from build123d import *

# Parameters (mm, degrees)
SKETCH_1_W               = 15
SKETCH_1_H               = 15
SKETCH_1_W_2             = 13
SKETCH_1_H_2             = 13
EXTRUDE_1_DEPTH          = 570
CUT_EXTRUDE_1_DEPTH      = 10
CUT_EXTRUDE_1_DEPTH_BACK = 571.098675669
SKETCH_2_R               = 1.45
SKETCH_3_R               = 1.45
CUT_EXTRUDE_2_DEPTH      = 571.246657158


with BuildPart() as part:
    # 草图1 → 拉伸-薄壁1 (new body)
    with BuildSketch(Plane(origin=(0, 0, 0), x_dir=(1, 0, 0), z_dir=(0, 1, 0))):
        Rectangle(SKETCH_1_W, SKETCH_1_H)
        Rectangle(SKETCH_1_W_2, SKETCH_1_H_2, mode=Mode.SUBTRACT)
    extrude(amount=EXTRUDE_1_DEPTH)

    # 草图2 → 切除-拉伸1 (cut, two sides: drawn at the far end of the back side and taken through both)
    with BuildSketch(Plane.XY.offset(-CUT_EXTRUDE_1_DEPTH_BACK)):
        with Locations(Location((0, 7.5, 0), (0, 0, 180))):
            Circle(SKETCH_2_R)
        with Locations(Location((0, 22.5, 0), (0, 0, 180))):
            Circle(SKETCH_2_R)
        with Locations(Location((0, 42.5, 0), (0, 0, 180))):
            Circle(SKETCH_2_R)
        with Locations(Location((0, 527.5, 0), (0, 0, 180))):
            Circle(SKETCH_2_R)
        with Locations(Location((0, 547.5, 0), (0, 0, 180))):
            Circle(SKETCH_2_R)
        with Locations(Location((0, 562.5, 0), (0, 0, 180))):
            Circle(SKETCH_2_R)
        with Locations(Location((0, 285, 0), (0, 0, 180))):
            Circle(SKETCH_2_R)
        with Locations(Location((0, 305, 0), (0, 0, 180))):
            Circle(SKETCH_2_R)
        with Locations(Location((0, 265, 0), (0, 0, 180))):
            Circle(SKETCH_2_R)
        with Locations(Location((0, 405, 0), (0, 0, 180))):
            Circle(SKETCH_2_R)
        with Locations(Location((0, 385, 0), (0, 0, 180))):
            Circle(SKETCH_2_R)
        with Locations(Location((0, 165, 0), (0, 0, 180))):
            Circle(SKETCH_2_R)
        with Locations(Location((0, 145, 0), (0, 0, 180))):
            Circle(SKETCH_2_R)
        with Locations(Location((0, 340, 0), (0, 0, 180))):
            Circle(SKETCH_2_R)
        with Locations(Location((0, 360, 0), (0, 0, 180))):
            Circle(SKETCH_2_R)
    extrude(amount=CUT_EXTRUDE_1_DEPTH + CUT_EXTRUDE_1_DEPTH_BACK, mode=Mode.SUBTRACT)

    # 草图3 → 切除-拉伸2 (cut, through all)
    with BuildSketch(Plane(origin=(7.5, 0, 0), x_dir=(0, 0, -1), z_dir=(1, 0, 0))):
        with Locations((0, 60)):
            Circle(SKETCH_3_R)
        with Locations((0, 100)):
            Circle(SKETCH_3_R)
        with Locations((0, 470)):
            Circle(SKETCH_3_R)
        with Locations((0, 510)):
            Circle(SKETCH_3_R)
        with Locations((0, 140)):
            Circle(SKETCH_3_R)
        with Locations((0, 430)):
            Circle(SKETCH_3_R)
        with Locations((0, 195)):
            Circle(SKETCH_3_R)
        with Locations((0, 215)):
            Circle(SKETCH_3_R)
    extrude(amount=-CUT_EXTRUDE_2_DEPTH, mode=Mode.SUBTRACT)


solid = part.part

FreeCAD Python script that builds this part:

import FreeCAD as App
import Part
import Sketcher
from FreeCAD import Vector

doc = App.newDocument("Part")
body = doc.addObject("PartDesign::Body", "Body")

sketch1 = body.newObject("Sketcher::SketchObject", "Sketch")
sketch1.AttachmentSupport = (doc.getObject("XZ_Plane"), [""])
sketch1.MapMode = "FlatFace"
sketch1.addGeometry(Part.LineSegment(Vector(-8, -8, 0), Vector(-8, 8, 0)), False)
sketch1.addGeometry(Part.LineSegment(Vector(-8, 8, 0), Vector(8, 8, 0)), False)
sketch1.addGeometry(Part.LineSegment(Vector(8, 8, 0), Vector(8, -8, 0)), False)
sketch1.addGeometry(Part.LineSegment(Vector(8, -8, 0), Vector(-8, -8, 0)), False)
sketch1.addGeometry(Part.LineSegment(Vector(6, 6, 0), Vector(-6, 6, 0)), False)
sketch1.addGeometry(Part.LineSegment(Vector(-6, 6, 0), Vector(-6, -6, 0)), False)
sketch1.addGeometry(Part.LineSegment(Vector(-6, -6, 0), Vector(6, -6, 0)), False)
sketch1.addGeometry(Part.LineSegment(Vector(6, -6, 0), Vector(6, 6, 0)), False)
sketch1.addConstraint(Sketcher.Constraint("Coincident", 0, 2, 1, 1))
sketch1.addConstraint(Sketcher.Constraint("Coincident", 1, 2, 2, 1))
sketch1.addConstraint(Sketcher.Constraint("Coincident", 2, 2, 3, 1))
sketch1.addConstraint(Sketcher.Constraint("Coincident", 3, 2, 0, 1))
sketch1.addConstraint(Sketcher.Constraint("Coincident", 4, 2, 5, 1))
sketch1.addConstraint(Sketcher.Constraint("Coincident", 5, 2, 6, 1))
sketch1.addConstraint(Sketcher.Constraint("Coincident", 6, 2, 7, 1))
sketch1.addConstraint(Sketcher.Constraint("Coincident", 7, 2, 4, 1))
sketch1.addConstraint(Sketcher.Constraint("Vertical", 0))
sketch1.addConstraint(Sketcher.Constraint("Horizontal", 1))
sketch1.addConstraint(Sketcher.Constraint("Vertical", 2))
sketch1.addConstraint(Sketcher.Constraint("Horizontal", 3))
sketch1.addConstraint(Sketcher.Constraint("Horizontal", 4))
sketch1.addConstraint(Sketcher.Constraint("Vertical", 5))
sketch1.addConstraint(Sketcher.Constraint("Horizontal", 6))
sketch1.addConstraint(Sketcher.Constraint("Vertical", 7))
sketch1.addConstraint(Sketcher.Constraint("Symmetric", 0, 2, 2, 2, -1, 1))
sketch1.addConstraint(Sketcher.Constraint("Symmetric", 4, 2, 6, 2, -1, 1))
sketch1.addConstraint(Sketcher.Constraint("Equal", 3, 0))
sketch1.addConstraint(Sketcher.Constraint("Equal", 6, 5))
sketch1.addConstraint(Sketcher.Constraint("DistanceX", 1, 1, 1, 2, 15.0))
sketch1.addConstraint(Sketcher.Constraint("DistanceX", 4, 2, 4, 1, 13.0))
pad1 = body.newObject("PartDesign::Pad", "Pad")
pad1.Profile = sketch1
pad1.Length = 570
pad1.Reversed = True

sketch2 = body.newObject("Sketcher::SketchObject", "Sketch001")
sketch2.AttachmentSupport = (doc.getObject("XY_Plane"), [""])
sketch2.MapMode = "FlatFace"
sketch2.addGeometry(Part.Circle(Vector(0, 7.5, 0), Vector(0, 0, 1), 1.4), False)
sketch2.addGeometry(Part.Circle(Vector(0, 22.5, 0), Vector(0, 0, 1), 1.4), False)
sketch2.addGeometry(Part.Circle(Vector(0, 42.5, 0), Vector(0, 0, 1), 1.4), False)
sketch2.addGeometry(Part.Circle(Vector(0, 527.5, 0), Vector(0, 0, 1), 1.4), False)
sketch2.addGeometry(Part.Circle(Vector(0, 547.5, 0), Vector(0, 0, 1), 1.4), False)
sketch2.addGeometry(Part.Circle(Vector(0, 562.5, 0), Vector(0, 0, 1), 1.4), False)
sketch2.addGeometry(Part.Circle(Vector(0, 285, 0), Vector(0, 0, 1), 1.4), False)
sketch2.addGeometry(Part.Circle(Vector(0, 305, 0), Vector(0, 0, 1), 1.4), False)
sketch2.addGeometry(Part.Circle(Vector(0, 265, 0), Vector(0, 0, 1), 1.4), False)
sketch2.addGeometry(Part.Circle(Vector(0, 405, 0), Vector(0, 0, 1), 1.4), False)
sketch2.addGeometry(Part.Circle(Vector(0, 385, 0), Vector(0, 0, 1), 1.4), False)
sketch2.addGeometry(Part.Circle(Vector(0, 165, 0), Vector(0, 0, 1), 1.4), False)
sketch2.addGeometry(Part.Circle(Vector(0, 145, 0), Vector(0, 0, 1), 1.4), False)
sketch2.addGeometry(Part.Circle(Vector(0, 340, 0), Vector(0, 0, 1), 1.4), False)
sketch2.addGeometry(Part.Circle(Vector(0, 360, 0), Vector(0, 0, 1), 1.4), False)
sketch2.addConstraint(Sketcher.Constraint("Equal", 0, 1))
sketch2.addConstraint(Sketcher.Constraint("Equal", 1, 2))
sketch2.addConstraint(Sketcher.Constraint("Equal", 2, 3))
sketch2.addConstraint(Sketcher.Constraint("Equal", 3, 4))
sketch2.addConstraint(Sketcher.Constraint("Equal", 4, 5))
sketch2.addConstraint(Sketcher.Constraint("Equal", 5, 6))
sketch2.addConstraint(Sketcher.Constraint("Equal", 6, 7))
sketch2.addConstraint(Sketcher.Constraint("Equal", 7, 8))
sketch2.addConstraint(Sketcher.Constraint("Equal", 8, 9))
sketch2.addConstraint(Sketcher.Constraint("Equal", 9, 10))
sketch2.addConstraint(Sketcher.Constraint("Equal", 10, 11))
sketch2.addConstraint(Sketcher.Constraint("Equal", 11, 12))
sketch2.addConstraint(Sketcher.Constraint("Equal", 12, 13))
sketch2.addConstraint(Sketcher.Constraint("Equal", 13, 14))
sketch2.addConstraint(Sketcher.Constraint("PointOnObject", 0, 3, -2))
sketch2.addConstraint(Sketcher.Constraint("PointOnObject", 1, 3, -2))
sketch2.addConstraint(Sketcher.Constraint("PointOnObject", 2, 3, -2))
sketch2.addConstraint(Sketcher.Constraint("PointOnObject", 3, 3, -2))
sketch2.addConstraint(Sketcher.Constraint("PointOnObject", 4, 3, -2))
sketch2.addConstraint(Sketcher.Constraint("PointOnObject", 5, 3, -2))
sketch2.addConstraint(Sketcher.Constraint("PointOnObject", 6, 3, -2))
sketch2.addConstraint(Sketcher.Constraint("PointOnObject", 7, 3, -2))
sketch2.addConstraint(Sketcher.Constraint("PointOnObject", 8, 3, -2))
sketch2.addConstraint(Sketcher.Constraint("PointOnObject", 9, 3, -2))
sketch2.addConstraint(Sketcher.Constraint("PointOnObject", 10, 3, -2))
sketch2.addConstraint(Sketcher.Constraint("PointOnObject", 11, 3, -2))
sketch2.addConstraint(Sketcher.Constraint("PointOnObject", 12, 3, -2))
sketch2.addConstraint(Sketcher.Constraint("PointOnObject", 13, 3, -2))
sketch2.addConstraint(Sketcher.Constraint("PointOnObject", 14, 3, -2))
sketch2.addConstraint(Sketcher.Constraint("Diameter", 0, 2.9))
sketch2.addConstraint(Sketcher.Constraint("DistanceY", -1, 1, 6, 3, 285.0))
sketch2.addConstraint(Sketcher.Constraint("DistanceY", -1, 1, 7, 3, 305.0))
sketch2.addConstraint(Sketcher.Constraint("DistanceY", -1, 1, 8, 3, 265.0))
sketch2.addConstraint(Sketcher.Constraint("DistanceY", -1, 1, 9, 3, 405.0))
sketch2.addConstraint(Sketcher.Constraint("DistanceY", -1, 1, 10, 3, 385.0))
sketch2.addConstraint(Sketcher.Constraint("DistanceY", -1, 1, 11, 3, 165.0))
sketch2.addConstraint(Sketcher.Constraint("DistanceY", -1, 1, 12, 3, 145.0))
sketch2.addConstraint(Sketcher.Constraint("DistanceY", -1, 1, 13, 3, 340.0))
sketch2.addConstraint(Sketcher.Constraint("DistanceY", -1, 1, 14, 3, 360.0))
sketch2.addConstraint(Sketcher.Constraint("DistanceY", 0, 3, 1, 3, 15.0))
sketch2.addConstraint(Sketcher.Constraint("DistanceY", 1, 3, 2, 3, 20.0))
sketch2.addConstraint(Sketcher.Constraint("DistanceY", 2, 3, 3, 3, 485.0))
sketch2.addConstraint(Sketcher.Constraint("DistanceY", 3, 3, 4, 3, 20.0))
sketch2.addConstraint(Sketcher.Constraint("DistanceY", 4, 3, 5, 3, 15.0))
sketch2.addConstraint(Sketcher.Constraint("DistanceY", -1, 1, 0, 3, 7.5))
pocket1 = body.newObject("PartDesign::Pocket", "Pocket")
pocket1.Profile = sketch2
pocket1.Type = "ThroughAll"
pocket1.Midplane = True

sketch3 = body.newObject("Sketcher::SketchObject", "Sketch002")
sketch3.AttachmentSupport = (doc.getObject("YZ_Plane"), [""])
sketch3.MapMode = "FlatFace"
sketch3.AttachmentOffset = App.Placement(Vector(0, 0, 7.5), App.Rotation())
sketch3.addGeometry(Part.Circle(Vector(60, 0, 0), Vector(0, 0, 1), 1.4), False)
sketch3.addGeometry(Part.Circle(Vector(100, 0, 0), Vector(0, 0, 1), 1.4), False)
sketch3.addGeometry(Part.Circle(Vector(470, 0, 0), Vector(0, 0, 1), 1.4), False)
sketch3.addGeometry(Part.Circle(Vector(510, 0, 0), Vector(0, 0, 1), 1.4), False)
sketch3.addGeometry(Part.Circle(Vector(140, 0, 0), Vector(0, 0, 1), 1.4), False)
sketch3.addGeometry(Part.Circle(Vector(430, 0, 0), Vector(0, 0, 1), 1.4), False)
sketch3.addGeometry(Part.Circle(Vector(195, 0, 0), Vector(0, 0, 1), 1.4), False)
sketch3.addGeometry(Part.Circle(Vector(215, 0, 0), Vector(0, 0, 1), 1.4), False)
sketch3.addConstraint(Sketcher.Constraint("Equal", 0, 1))
sketch3.addConstraint(Sketcher.Constraint("Equal", 1, 2))
sketch3.addConstraint(Sketcher.Constraint("Equal", 2, 3))
sketch3.addConstraint(Sketcher.Constraint("Equal", 3, 4))
sketch3.addConstraint(Sketcher.Constraint("Equal", 4, 5))
sketch3.addConstraint(Sketcher.Constraint("Equal", 5, 6))
sketch3.addConstraint(Sketcher.Constraint("Equal", 6, 7))
sketch3.addConstraint(Sketcher.Constraint("PointOnObject", 0, 3, -1))
sketch3.addConstraint(Sketcher.Constraint("PointOnObject", 1, 3, -1))
sketch3.addConstraint(Sketcher.Constraint("PointOnObject", 2, 3, -1))
sketch3.addConstraint(Sketcher.Constraint("PointOnObject", 3, 3, -1))
sketch3.addConstraint(Sketcher.Constraint("PointOnObject", 4, 3, -1))
sketch3.addConstraint(Sketcher.Constraint("PointOnObject", 5, 3, -1))
sketch3.addConstraint(Sketcher.Constraint("PointOnObject", 6, 3, -1))
sketch3.addConstraint(Sketcher.Constraint("PointOnObject", 7, 3, -1))
sketch3.addConstraint(Sketcher.Constraint("Diameter", 0, 2.9))
sketch3.addConstraint(Sketcher.Constraint("DistanceX", -1, 1, 0, 3, 60.0))
sketch3.addConstraint(Sketcher.Constraint("DistanceX", -1, 1, 1, 3, 100.0))
sketch3.addConstraint(Sketcher.Constraint("DistanceX", -1, 1, 2, 3, 470.0))
sketch3.addConstraint(Sketcher.Constraint("DistanceX", -1, 1, 3, 3, 510.0))
sketch3.addConstraint(Sketcher.Constraint("DistanceX", -1, 1, 4, 3, 140.0))
sketch3.addConstraint(Sketcher.Constraint("DistanceX", -1, 1, 5, 3, 430.0))
sketch3.addConstraint(Sketcher.Constraint("DistanceX", -1, 1, 6, 3, 195.0))
sketch3.addConstraint(Sketcher.Constraint("DistanceX", -1, 1, 7, 3, 215.0))
pocket2 = body.newObject("PartDesign::Pocket", "Pocket001")
pocket2.Profile = sketch3
pocket2.Type = "ThroughAll"

doc.recompute()
